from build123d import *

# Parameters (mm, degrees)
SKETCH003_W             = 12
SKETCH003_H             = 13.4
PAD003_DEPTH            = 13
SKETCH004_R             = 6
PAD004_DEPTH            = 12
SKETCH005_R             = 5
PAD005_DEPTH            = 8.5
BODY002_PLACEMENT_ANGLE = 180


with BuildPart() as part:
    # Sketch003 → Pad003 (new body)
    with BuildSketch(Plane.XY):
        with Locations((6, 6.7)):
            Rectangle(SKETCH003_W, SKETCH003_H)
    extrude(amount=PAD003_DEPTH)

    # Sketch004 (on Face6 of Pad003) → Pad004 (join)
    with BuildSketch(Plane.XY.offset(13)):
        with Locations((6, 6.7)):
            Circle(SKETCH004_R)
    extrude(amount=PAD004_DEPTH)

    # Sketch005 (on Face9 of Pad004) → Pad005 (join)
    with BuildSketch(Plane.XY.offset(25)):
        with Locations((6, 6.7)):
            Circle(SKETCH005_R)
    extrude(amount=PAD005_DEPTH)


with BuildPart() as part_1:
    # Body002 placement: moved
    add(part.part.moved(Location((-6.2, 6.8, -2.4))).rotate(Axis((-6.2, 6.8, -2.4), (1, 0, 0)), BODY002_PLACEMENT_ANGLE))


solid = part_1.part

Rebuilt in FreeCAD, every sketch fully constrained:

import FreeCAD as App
import Part
import Sketcher
Q = App.Units.Quantity


def add_polygon(sketch, points):
    """Adds a closed chain of lines whose ends are joined by coincident constraints."""
    first, n = sketch.GeometryCount, len(points)
    for a, b in zip(points, points[1:] + points[:1]):
        sketch.addGeometry(Part.LineSegment(App.Vector(*a, 0), App.Vector(*b, 0)), False)
    for i in range(n):
        sketch.addConstraint(Sketcher.Constraint("Coincident", first + i, 2, first + (i + 1) % n, 1))

doc = App.newDocument("Part")
body = doc.addObject("PartDesign::Body", "Body")

# Sketch on XY plane
sketch1 = doc.addObject("Sketcher::SketchObject", "Sketch")
body.addObject(sketch1)
sketch1.AttachmentSupport = (doc.XY_Plane, [""])
sketch1.MapMode = "FlatFace"
add_polygon(sketch1, [(0, 13), (0, 0), (12, 0), (12, 13)])  # lines 0-3
sketch1.addConstraint(Sketcher.Constraint("Vertical", 0))
sketch1.addConstraint(Sketcher.Constraint("Horizontal", 1))
sketch1.addConstraint(Sketcher.Constraint("Vertical", 2))
sketch1.addConstraint(Sketcher.Constraint("Horizontal", 3))
sketch1.addConstraint(Sketcher.Constraint("Coincident", 0, 2, -1, 1))
sketch1.addConstraint(Sketcher.Constraint("DistanceX", 1, 1, 1, 2, Q("12 mm")))
sketch1.addConstraint(Sketcher.Constraint("DistanceY", 0, 2, 0, 1, Q("13.4 mm")))
pad1 = doc.addObject("PartDesign::Pad", "Pad")
body.addObject(pad1)
pad1.Profile = sketch1
pad1.Length = 13

# Sketch on XY plane
sketch2 = doc.addObject("Sketcher::SketchObject", "Sketch001")
body.addObject(sketch2)
sketch2.AttachmentSupport = (doc.XY_Plane, [""])
sketch2.MapMode = "FlatFace"
sketch2.AttachmentOffset = App.Placement(App.Vector(0, 0, 13), App.Rotation())
sketch2.addGeometry(Part.Circle(App.Vector(6, 7, 0), App.Vector(0, 0, 1), 6), False)
sketch2.addConstraint(Sketcher.Constraint("Diameter", 0, Q("12 mm")))
sketch2.addConstraint(Sketcher.Constraint("DistanceX", -1, 1, 0, 3, Q("6 mm")))
sketch2.addConstraint(Sketcher.Constraint("DistanceY", -1, 1, 0, 3, Q("6.7 mm")))
pad2 = doc.addObject("PartDesign::Pad", "Pad001")
body.addObject(pad2)
pad2.Profile = sketch2
pad2.Length = 12

# Sketch on XY plane
sketch3 = doc.addObject("Sketcher::SketchObject", "Sketch002")
body.addObject(sketch3)
sketch3.AttachmentSupport = (doc.XY_Plane, [""])
sketch3.MapMode = "FlatFace"
sketch3.AttachmentOffset = App.Placement(App.Vector(0, 0, 25), App.Rotation())
sketch3.addGeometry(Part.Circle(App.Vector(6, 7, 0), App.Vector(0, 0, 1), 5), False)
sketch3.addConstraint(Sketcher.Constraint("Diameter", 0, Q("10 mm")))
sketch3.addConstraint(Sketcher.Constraint("DistanceX", -1, 1, 0, 3, Q("6 mm")))
sketch3.addConstraint(Sketcher.Constraint("DistanceY", -1, 1, 0, 3, Q("6.7 mm")))
pad3 = doc.addObject("PartDesign::Pad", "Pad002")
body.addObject(pad3)
pad3.Profile = sketch3
pad3.Length = 8.5
body2 = doc.addObject("PartDesign::Body", "Body001")
doc.recompute()

body.Placement = App.Placement(App.Vector(-6.2, 6.8, -2.4), App.Rotation(App.Vector(1, 0, 0), 180))
boolean = doc.addObject("PartDesign::Boolean", "Boolean")
body2.addObject(boolean)
boolean.Type = "Fuse"
boolean.addObjects([body])

doc.recompute()
